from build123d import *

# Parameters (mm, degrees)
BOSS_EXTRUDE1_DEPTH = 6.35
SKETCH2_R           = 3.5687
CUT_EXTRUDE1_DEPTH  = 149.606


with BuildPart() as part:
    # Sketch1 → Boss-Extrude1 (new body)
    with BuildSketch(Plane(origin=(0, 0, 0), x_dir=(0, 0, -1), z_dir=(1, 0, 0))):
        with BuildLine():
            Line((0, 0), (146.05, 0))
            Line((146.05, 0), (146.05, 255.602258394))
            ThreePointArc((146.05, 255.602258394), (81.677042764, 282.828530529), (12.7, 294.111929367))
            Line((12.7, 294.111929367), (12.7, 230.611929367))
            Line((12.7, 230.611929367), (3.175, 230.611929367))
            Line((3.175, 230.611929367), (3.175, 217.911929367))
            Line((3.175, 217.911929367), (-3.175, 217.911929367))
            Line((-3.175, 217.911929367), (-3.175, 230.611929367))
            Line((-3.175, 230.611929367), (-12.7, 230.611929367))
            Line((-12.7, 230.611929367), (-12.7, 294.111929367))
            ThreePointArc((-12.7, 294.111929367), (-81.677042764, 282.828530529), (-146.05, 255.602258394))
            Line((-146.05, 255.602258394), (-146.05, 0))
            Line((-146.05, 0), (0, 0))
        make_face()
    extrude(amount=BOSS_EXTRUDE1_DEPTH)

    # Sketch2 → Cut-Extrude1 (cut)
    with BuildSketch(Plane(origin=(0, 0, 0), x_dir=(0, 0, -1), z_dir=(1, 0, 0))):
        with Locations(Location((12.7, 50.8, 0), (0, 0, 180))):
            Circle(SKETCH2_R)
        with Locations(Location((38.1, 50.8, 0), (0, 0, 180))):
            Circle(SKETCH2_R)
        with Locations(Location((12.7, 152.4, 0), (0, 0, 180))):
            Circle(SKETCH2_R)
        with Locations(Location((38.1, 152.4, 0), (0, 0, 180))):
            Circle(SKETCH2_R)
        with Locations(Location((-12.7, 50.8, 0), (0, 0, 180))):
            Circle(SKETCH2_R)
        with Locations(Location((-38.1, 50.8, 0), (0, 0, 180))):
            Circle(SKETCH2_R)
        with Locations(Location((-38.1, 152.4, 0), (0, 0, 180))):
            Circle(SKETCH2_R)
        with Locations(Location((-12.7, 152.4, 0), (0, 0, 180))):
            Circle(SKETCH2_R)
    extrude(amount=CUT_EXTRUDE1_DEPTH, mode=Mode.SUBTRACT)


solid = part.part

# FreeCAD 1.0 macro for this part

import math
import FreeCAD as App
import Part
import Sketcher
Q = App.Units.Quantity

doc = App.newDocument("Part")
body = doc.addObject("PartDesign::Body", "Body")

# Sketch on YZ plane
sketch1 = body.newObject("Sketcher::SketchObject", "Sketch")
sketch1.AttachmentSupport = (doc.getObject("YZ_Plane"), [""])
sketch1.MapMode = "FlatFace"
sketch1.addGeometry(Part.LineSegment(App.Vector(0, -146, 0), App.Vector(256, -146, 0)), False)
sketch1.addGeometry(Part.ArcOfCircle(Part.Circle(App.Vector(0, 0, 0), App.Vector(0, 0, 1), 294), math.radians(-30), math.radians(-2)), False)
sketch1.addGeometry(Part.LineSegment(App.Vector(294, -13, 0), App.Vector(231, -13, 0)), False)
sketch1.addGeometry(Part.LineSegment(App.Vector(231, -13, 0), App.Vector(231, -3, 0)), False)
sketch1.addGeometry(Part.LineSegment(App.Vector(231, -3, 0), App.Vector(218, -3, 0)), False)
sketch1.addGeometry(Part.LineSegment(App.Vector(218, -3, 0), App.Vector(218, 3, 0)), False)
sketch1.addGeometry(Part.LineSegment(App.Vector(218, 3, 0), App.Vector(231, 3, 0)), False)
sketch1.addGeometry(Part.LineSegment(App.Vector(231, 3, 0), App.Vector(231, 13, 0)), False)
sketch1.addGeometry(Part.LineSegment(App.Vector(231, 13, 0), App.Vector(294, 13, 0)), False)
sketch1.addGeometry(Part.ArcOfCircle(Part.Circle(App.Vector(0, 0, 0), App.Vector(0, 0, 1), 294), math.radians(2), math.radians(30)), False)
sketch1.addGeometry(Part.LineSegment(App.Vector(256, 146, 0), App.Vector(0, 146, 0)), False)
sketch1.addGeometry(Part.LineSegment(App.Vector(0, 146, 0), App.Vector(0, -146, 0)), False)
sketch1.addConstraint(Sketcher.Constraint("Coincident", 0, 2, 1, 1))
sketch1.addConstraint(Sketcher.Constraint("Coincident", 1, 2, 2, 1))
sketch1.addConstraint(Sketcher.Constraint("Coincident", 2, 2, 3, 1))
sketch1.addConstraint(Sketcher.Constraint("Coincident", 3, 2, 4, 1))
sketch1.addConstraint(Sketcher.Constraint("Coincident", 4, 2, 5, 1))
sketch1.addConstraint(Sketcher.Constraint("Coincident", 5, 2, 6, 1))
sketch1.addConstraint(Sketcher.Constraint("Coincident", 6, 2, 7, 1))
sketch1.addConstraint(Sketcher.Constraint("Coincident", 7, 2, 8, 1))
sketch1.addConstraint(Sketcher.Constraint("Coincident", 8, 2, 9, 1))
sketch1.addConstraint(Sketcher.Constraint("Coincident", 9, 2, 10, 1))
sketch1.addConstraint(Sketcher.Constraint("Coincident", 10, 2, 11, 1))
sketch1.addConstraint(Sketcher.Constraint("Coincident", 11, 2, 0, 1))
sketch1.addConstraint(Sketcher.Constraint("Horizontal", 0))
sketch1.addConstraint(Sketcher.Constraint("Horizontal", 2))
sketch1.addConstraint(Sketcher.Constraint("Vertical", 3))
sketch1.addConstraint(Sketcher.Constraint("Horizontal", 4))
sketch1.addConstraint(Sketcher.Constraint("Vertical", 5))
sketch1.addConstraint(Sketcher.Constraint("Horizontal", 6))
sketch1.addConstraint(Sketcher.Constraint("Vertical", 7))
sketch1.addConstraint(Sketcher.Constraint("Horizontal", 8))
sketch1.addConstraint(Sketcher.Constraint("Horizontal", 10))
sketch1.addConstraint(Sketcher.Constraint("Vertical", 11))
sketch1.addConstraint(Sketcher.Constraint("Coincident", 1, 3, -1, 1))
sketch1.addConstraint(Sketcher.Constraint("Coincident", 9, 3, -1, 1))
sketch1.addConstraint(Sketcher.Constraint("Equal", 1, 9))
sketch1.addConstraint(Sketcher.Constraint("Symmetric", 10, 2, 11, 2, -1, 1))
sketch1.addConstraint(Sketcher.Constraint("Symmetric", 3, 2, 6, 2, -1))
sketch1.addConstraint(Sketcher.Constraint("Vertical", 1, 2, 8, 2))
sketch1.addConstraint(Sketcher.Constraint("Radius", 1, Q("11.59 in")))
sketch1.addConstraint(Sketcher.Constraint("DistanceX", 2, 2, 2, 1, Q("2.5 in")))
sketch1.addConstraint(Sketcher.Constraint("DistanceX", 4, 2, 4, 1, Q("0.5 in")))
sketch1.addConstraint(Sketcher.Constraint("DistanceY", 11, 2, 11, 1, Q("11.5 in")))
sketch1.addConstraint(Sketcher.Constraint("DistanceY", 2, 2, 7, 2, Q("1 in")))
sketch1.addConstraint(Sketcher.Constraint("DistanceY", 5, 1, 5, 2, Q("0.25 in")))
pad1 = body.newObject("PartDesign::Pad", "Pad")
pad1.Profile = sketch1
pad1.Length = Q("0.25 in")

# Sketch on YZ plane
sketch2 = body.newObject("Sketcher::SketchObject", "Sketch001")
sketch2.AttachmentSupport = (doc.getObject("YZ_Plane"), [""])
sketch2.MapMode = "FlatFace"
sketch2.addGeometry(Part.Circle(App.Vector(50.8, -12.7, 0), App.Vector(0, 0, 1), 3.6), False)
sketch2.addGeometry(Part.Circle(App.Vector(50.8, -38.1, 0), App.Vector(0, 0, 1), 3.6), False)
sketch2.addGeometry(Part.Circle(App.Vector(152.4, -12.7, 0), App.Vector(0, 0, 1), 3.6), False)
sketch2.addGeometry(Part.Circle(App.Vector(152.4, -38.1, 0), App.Vector(0, 0, 1), 3.6), False)
sketch2.addGeometry(Part.Circle(App.Vector(50.8, 12.7, 0), App.Vector(0, 0, 1), 3.6), False)
sketch2.addGeometry(Part.Circle(App.Vector(50.8, 38.1, 0), App.Vector(0, 0, 1), 3.6), False)
sketch2.addGeometry(Part.Circle(App.Vector(152.4, 38.1, 0), App.Vector(0, 0, 1), 3.6), False)
sketch2.addGeometry(Part.Circle(App.Vector(152.4, 12.7, 0), App.Vector(0, 0, 1), 3.6), False)
sketch2.addConstraint(Sketcher.Constraint("Equal", 0, 1))
sketch2.addConstraint(Sketcher.Constraint("Equal", 1, 2))
sketch2.addConstraint(Sketcher.Constraint("Equal", 2, 3))
sketch2.addConstraint(Sketcher.Constraint("Equal", 3, 4))
sketch2.addConstraint(Sketcher.Constraint("Equal", 4, 5))
sketch2.addConstraint(Sketcher.Constraint("Equal", 5, 6))
sketch2.addConstraint(Sketcher.Constraint("Equal", 6, 7))
sketch2.addConstraint(Sketcher.Constraint("Symmetric", 0, 3, 4, 3, -1))
sketch2.addConstraint(Sketcher.Constraint("Symmetric", 1, 3, 5, 3, -1))
sketch2.addConstraint(Sketcher.Constraint("Symmetric", 3, 3, 6, 3, -1))
sketch2.addConstraint(Sketcher.Constraint("Symmetric", 2, 3, 7, 3, -1))
sketch2.addConstraint(Sketcher.Constraint("Horizontal", 0, 3, 2, 3))
sketch2.addConstraint(Sketcher.Constraint("Horizontal", 1, 3, 3, 3))
sketch2.addConstraint(Sketcher.Constraint("Vertical", 0, 3, 1, 3))
sketch2.addConstraint(Sketcher.Constraint("Vertical", 2, 3, 3, 3))
sketch2.addConstraint(Sketcher.Constraint("Diameter", 0, Q("0.281 in")))
sketch2.addConstraint(Sketcher.Constraint("DistanceX", -1, 1, 0, 3, Q("2 in")))
sketch2.addConstraint(Sketcher.Constraint("DistanceX", -1, 1, 2, 3, Q("6 in")))
sketch2.addConstraint(Sketcher.Constraint("DistanceY", 1, 3, 0, 3, Q("1 in")))
sketch2.addConstraint(Sketcher.Constraint("DistanceY", 0, 3, 4, 3, Q("1 in")))
pocket1 = body.newObject("PartDesign::Pocket", "Pocket")
pocket1.Profile = sketch2
pocket1.Length = Q("5.89 in")
pocket1.Reversed = True

doc.recompute()
